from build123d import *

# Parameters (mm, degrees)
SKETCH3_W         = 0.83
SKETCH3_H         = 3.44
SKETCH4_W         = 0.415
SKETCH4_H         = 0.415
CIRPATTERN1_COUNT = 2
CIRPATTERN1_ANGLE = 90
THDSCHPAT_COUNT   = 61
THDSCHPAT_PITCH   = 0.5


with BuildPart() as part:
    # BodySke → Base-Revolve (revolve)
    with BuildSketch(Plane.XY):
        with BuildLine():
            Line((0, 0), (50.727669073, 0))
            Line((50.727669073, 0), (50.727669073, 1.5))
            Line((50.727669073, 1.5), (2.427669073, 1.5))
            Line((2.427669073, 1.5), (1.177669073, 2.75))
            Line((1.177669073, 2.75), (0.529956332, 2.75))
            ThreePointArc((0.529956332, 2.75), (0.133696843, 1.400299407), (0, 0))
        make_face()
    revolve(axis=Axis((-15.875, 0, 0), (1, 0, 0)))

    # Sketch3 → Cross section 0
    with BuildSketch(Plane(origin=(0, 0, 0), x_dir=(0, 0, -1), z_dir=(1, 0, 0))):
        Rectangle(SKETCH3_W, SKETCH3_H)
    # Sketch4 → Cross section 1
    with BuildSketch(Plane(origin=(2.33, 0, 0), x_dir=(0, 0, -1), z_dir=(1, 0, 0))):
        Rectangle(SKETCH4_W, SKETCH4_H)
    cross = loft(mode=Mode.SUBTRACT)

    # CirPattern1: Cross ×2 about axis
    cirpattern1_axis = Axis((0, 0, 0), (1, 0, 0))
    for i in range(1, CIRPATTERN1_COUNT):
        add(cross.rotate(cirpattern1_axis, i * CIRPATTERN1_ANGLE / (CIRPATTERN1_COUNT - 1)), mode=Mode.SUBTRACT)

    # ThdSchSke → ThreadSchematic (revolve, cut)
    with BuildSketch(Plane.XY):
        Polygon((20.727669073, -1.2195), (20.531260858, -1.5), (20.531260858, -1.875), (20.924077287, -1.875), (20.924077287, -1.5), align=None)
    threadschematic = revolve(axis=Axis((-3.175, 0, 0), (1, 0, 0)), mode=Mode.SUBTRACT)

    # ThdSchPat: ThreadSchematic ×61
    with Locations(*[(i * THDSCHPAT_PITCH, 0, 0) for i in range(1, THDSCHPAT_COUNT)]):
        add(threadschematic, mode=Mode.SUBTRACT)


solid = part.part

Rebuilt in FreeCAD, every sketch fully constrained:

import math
import FreeCAD as App
import Part
import Sketcher
from FreeCAD import Vector
Q = App.Units.Quantity

doc = App.newDocument("Part")
body = doc.addObject("PartDesign::Body", "Body")

sketch1 = doc.addObject("Sketcher::SketchObject", "Sketch")
body.addObject(sketch1)
sketch1.AttachmentSupport = (doc.XY_Plane, [""])
sketch1.MapMode = "FlatFace"
sketch1.addGeometry([
    Part.LineSegment(Vector(0, 0, 0), Vector(50.727669, 0, 0)),
    Part.LineSegment(Vector(50.727669, 0, 0), Vector(50.727669, 1.5, 0)),
    Part.LineSegment(Vector(50.727669, 1.5, 0), Vector(2.427669, 1.5, 0)),
    Part.LineSegment(Vector(2.427669, 1.5, 0), Vector(1.177669, 2.75, 0)),
    Part.LineSegment(Vector(1.177669, 2.75, 0), Vector(0.529956, 2.75, 0)),
    Part.ArcOfCircle(Part.Circle(Vector(7.4, 0, 0), Vector(0, 0, 1), 7.4), math.radians(158.184338), math.radians(180)),
], False)
sketch1.addConstraint([
    Sketcher.Constraint("Coincident", 0, 2, 1, 1),
    Sketcher.Constraint("Coincident", 1, 2, 2, 1),
    Sketcher.Constraint("Coincident", 2, 2, 3, 1),
    Sketcher.Constraint("Coincident", 3, 2, 4, 1),
    Sketcher.Constraint("Coincident", 4, 2, 5, 1),
    Sketcher.Constraint("Coincident", 5, 2, 0, 1),
    Sketcher.Constraint("Horizontal", 0),
    Sketcher.Constraint("Vertical", 1),
    Sketcher.Constraint("Horizontal", 2),
    Sketcher.Constraint("Horizontal", 4),
    Sketcher.Constraint("Coincident", 5, 2, -1, 1),
    Sketcher.Constraint("PointOnObject", 5, 3, -1),
    Sketcher.Constraint("Radius", 5, Q("7.4 mm")),
    Sketcher.Constraint("Angle", 3, Q("135 deg")),
    Sketcher.Constraint("DistanceX", 2, 2, 2, 1, Q("48.3 mm")),
    Sketcher.Constraint("DistanceY", 1, 1, 1, 2, Q("1.5 mm")),
    Sketcher.Constraint("DistanceY", -1, 1, 3, 2, Q("2.75 mm")),
    Sketcher.Constraint("DistanceX", 0, 1, 0, 2, Q("50.727669 mm")),
])
revolution = doc.addObject("PartDesign::Revolution", "Revolution")
body.addObject(revolution)
revolution.Profile = sketch1
revolution.ReferenceAxis = (sketch1, ["H_Axis"])
revolution.Angle = 360

sketch2 = doc.addObject("Sketcher::SketchObject", "Sketch001")
body.addObject(sketch2)
sketch2.AttachmentSupport = (doc.YZ_Plane, [""])
sketch2.MapMode = "FlatFace"
sketch2.addGeometry([
    Part.LineSegment(Vector(1.72, 0.415, 0), Vector(-1.72, 0.415, 0)),
    Part.LineSegment(Vector(-1.72, 0.415, 0), Vector(-1.72, -0.415, 0)),
    Part.LineSegment(Vector(-1.72, -0.415, 0), Vector(1.72, -0.415, 0)),
    Part.LineSegment(Vector(1.72, -0.415, 0), Vector(1.72, 0.415, 0)),
], False)
sketch2.addConstraint([
    Sketcher.Constraint("Coincident", 0, 2, 1, 1),
    Sketcher.Constraint("Coincident", 1, 2, 2, 1),
    Sketcher.Constraint("Coincident", 2, 2, 3, 1),
    Sketcher.Constraint("Coincident", 3, 2, 0, 1),
    Sketcher.Constraint("Horizontal", 0),
    Sketcher.Constraint("Vertical", 1),
    Sketcher.Constraint("Horizontal", 2),
    Sketcher.Constraint("Vertical", 3),
    Sketcher.Constraint("Symmetric", 0, 2, 2, 2, -1, 1),
    Sketcher.Constraint("DistanceX", 0, 2, 0, 1, Q("3.44 mm")),
    Sketcher.Constraint("DistanceY", 1, 2, 1, 1, Q("0.83 mm")),
])

sketch3 = doc.addObject("Sketcher::SketchObject", "Sketch002")
body.addObject(sketch3)
sketch3.AttachmentSupport = (doc.YZ_Plane, [""])
sketch3.MapMode = "FlatFace"
sketch3.AttachmentOffset = App.Placement(Vector(0, 0, 2.33), App.Rotation())
sketch3.addGeometry([
    Part.LineSegment(Vector(0.2075, 0.2075, 0), Vector(-0.2075, 0.2075, 0)),
    Part.LineSegment(Vector(-0.2075, 0.2075, 0), Vector(-0.2075, -0.2075, 0)),
    Part.LineSegment(Vector(-0.2075, -0.2075, 0), Vector(0.2075, -0.2075, 0)),
    Part.LineSegment(Vector(0.2075, -0.2075, 0), Vector(0.2075, 0.2075, 0)),
], False)
sketch3.addConstraint([
    Sketcher.Constraint("Coincident", 0, 2, 1, 1),
    Sketcher.Constraint("Coincident", 1, 2, 2, 1),
    Sketcher.Constraint("Coincident", 2, 2, 3, 1),
    Sketcher.Constraint("Coincident", 3, 2, 0, 1),
    Sketcher.Constraint("Horizontal", 0),
    Sketcher.Constraint("Vertical", 1),
    Sketcher.Constraint("Horizontal", 2),
    Sketcher.Constraint("Vertical", 3),
    Sketcher.Constraint("Symmetric", 0, 2, 2, 2, -1, 1),
    Sketcher.Constraint("Equal", 2, 1),
    Sketcher.Constraint("DistanceX", 0, 2, 0, 1, Q("0.415 mm")),
])

subtractiveloft = doc.addObject("PartDesign::SubtractiveLoft", "SubtractiveLoft")
body.addObject(subtractiveloft)
subtractiveloft.Profile = sketch2
subtractiveloft.Sections = [sketch3]
doc.recompute()

polarpattern = doc.addObject("PartDesign::PolarPattern", "PolarPattern")
body.addObject(polarpattern)
polarpattern.Originals = [subtractiveloft]
polarpattern.Axis = (doc.X_Axis, [""])
polarpattern.Angle = 90
polarpattern.Occurrences = 2
body.Tip = polarpattern

sketch4 = doc.addObject("Sketcher::SketchObject", "Sketch003")
body.addObject(sketch4)
sketch4.AttachmentSupport = (doc.XY_Plane, [""])
sketch4.MapMode = "FlatFace"
sketch4.addGeometry([
    Part.LineSegment(Vector(20.727669, -1.2195, 0), Vector(20.531261, -1.5, 0)),
    Part.LineSegment(Vector(20.531261, -1.5, 0), Vector(20.531261, -1.875, 0)),
    Part.LineSegment(Vector(20.531261, -1.875, 0), Vector(20.924077, -1.875, 0)),
    Part.LineSegment(Vector(20.924077, -1.875, 0), Vector(20.924077, -1.5, 0)),
    Part.LineSegment(Vector(20.924077, -1.5, 0), Vector(20.727669, -1.2195, 0)),
], False)
sketch4.addConstraint([
    Sketcher.Constraint("Coincident", 0, 2, 1, 1),
    Sketcher.Constraint("Coincident", 1, 2, 2, 1),
    Sketcher.Constraint("Coincident", 2, 2, 3, 1),
    Sketcher.Constraint("Coincident", 3, 2, 4, 1),
    Sketcher.Constraint("Coincident", 4, 2, 0, 1),
    Sketcher.Constraint("Vertical", 1),
    Sketcher.Constraint("Horizontal", 2),
    Sketcher.Constraint("Vertical", 3),
    Sketcher.Constraint("Horizontal", 0, 2, 3, 2),
    Sketcher.Constraint("Equal", 0, 4),
    Sketcher.Constraint("Angle", 0, Q("-125 deg")),
    Sketcher.Constraint("DistanceY", 0, 2, -1, 1, Q("1.5 mm")),
    Sketcher.Constraint("DistanceY", 1, 2, 1, 1, Q("0.375 mm")),
    Sketcher.Constraint("DistanceY", 4, 2, -1, 1, Q("1.2195 mm")),
    Sketcher.Constraint("DistanceX", -1, 1, 0, 2, Q("20.531261 mm")),
])
groove = doc.addObject("PartDesign::Groove", "Groove")
body.addObject(groove)
groove.Profile = sketch4
groove.ReferenceAxis = (sketch4, ["H_Axis"])
groove.Angle = 360
doc.recompute()

linearpattern = doc.addObject("PartDesign::LinearPattern", "LinearPattern")
body.addObject(linearpattern)
linearpattern.Originals = [groove]
linearpattern.Direction = (doc.X_Axis, [""])
linearpattern.Mode = "offset"
linearpattern.Offset = 0.5
linearpattern.Occurrences = 61
body.Tip = linearpattern

doc.recompute()
